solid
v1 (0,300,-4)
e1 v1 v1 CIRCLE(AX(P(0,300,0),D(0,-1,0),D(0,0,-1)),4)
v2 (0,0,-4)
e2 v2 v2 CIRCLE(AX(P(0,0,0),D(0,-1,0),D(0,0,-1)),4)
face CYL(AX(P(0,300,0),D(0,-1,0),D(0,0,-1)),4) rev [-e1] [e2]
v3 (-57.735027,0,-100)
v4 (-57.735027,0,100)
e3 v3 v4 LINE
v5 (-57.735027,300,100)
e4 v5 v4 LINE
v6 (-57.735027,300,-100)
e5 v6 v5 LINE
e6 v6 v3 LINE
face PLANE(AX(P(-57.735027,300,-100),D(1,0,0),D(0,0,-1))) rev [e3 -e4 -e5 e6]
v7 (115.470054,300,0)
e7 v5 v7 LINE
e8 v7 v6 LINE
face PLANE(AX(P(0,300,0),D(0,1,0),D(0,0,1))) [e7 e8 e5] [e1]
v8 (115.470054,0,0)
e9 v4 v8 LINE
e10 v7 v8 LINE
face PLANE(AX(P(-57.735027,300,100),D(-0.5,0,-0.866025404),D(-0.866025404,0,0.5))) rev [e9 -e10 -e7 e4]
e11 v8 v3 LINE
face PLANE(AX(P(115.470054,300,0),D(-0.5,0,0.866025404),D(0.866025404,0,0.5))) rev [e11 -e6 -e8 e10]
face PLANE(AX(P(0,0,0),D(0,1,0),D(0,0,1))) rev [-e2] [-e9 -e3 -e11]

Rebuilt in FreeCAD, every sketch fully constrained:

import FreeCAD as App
import Part
import Sketcher
from FreeCAD import Vector
Q = App.Units.Quantity


def add_polygon(sketch, points):
    """Adds a closed chain of lines whose ends are joined by coincident constraints."""
    first, n = sketch.GeometryCount, len(points)
    for a, b in zip(points, points[1:] + points[:1]):
        sketch.addGeometry(Part.LineSegment(App.Vector(*a, 0), App.Vector(*b, 0)), False)
    for i in range(n):
        sketch.addConstraint(Sketcher.Constraint("Coincident", first + i, 2, first + (i + 1) % n, 1))

doc = App.newDocument("Part")
body = doc.addObject("PartDesign::Body", "Body")

# Sketch on XZ plane
sketch1 = body.newObject("Sketcher::SketchObject", "Sketch")
sketch1.AttachmentSupport = (doc.getObject("XZ_Plane"), [""])
sketch1.MapMode = "FlatFace"
add_polygon(sketch1, [(115, 0), (-58, -100), (-58, 100)])  # lines 0-2
sketch1.addConstraint([
    Sketcher.Constraint("Vertical", 1),
    Sketcher.Constraint("PointOnObject", 2, 2, -1),
    Sketcher.Constraint("Equal", 0, 2),
    Sketcher.Constraint("DistanceY", 1, 1, 1, 2, Q("200 mm")),
    Sketcher.Constraint("Angle", 0, Q("-150 deg")),
    Sketcher.Constraint("DistanceX", 0, 2, -1, 1, Q("57.735027 mm")),
])
pad1 = body.newObject("PartDesign::Pad", "Pad")
pad1.Profile = sketch1
pad1.Length = 300
pad1.Reversed = True

# Sketch on XZ plane
sketch2 = body.newObject("Sketcher::SketchObject", "Sketch001")
sketch2.AttachmentSupport = (doc.getObject("XZ_Plane"), [""])
sketch2.MapMode = "FlatFace"
sketch2.addGeometry(Part.Circle(Vector(0, 0, 0), Vector(0, 0, 1), 4), False)
sketch2.addConstraint([
    Sketcher.Constraint("Coincident", 0, 3, -1, 1),
    Sketcher.Constraint("Diameter", 0, Q("8 mm")),
])
pocket1 = body.newObject("PartDesign::Pocket", "Pocket")
pocket1.Profile = sketch2
pocket1.Length = 300

doc.recompute()
